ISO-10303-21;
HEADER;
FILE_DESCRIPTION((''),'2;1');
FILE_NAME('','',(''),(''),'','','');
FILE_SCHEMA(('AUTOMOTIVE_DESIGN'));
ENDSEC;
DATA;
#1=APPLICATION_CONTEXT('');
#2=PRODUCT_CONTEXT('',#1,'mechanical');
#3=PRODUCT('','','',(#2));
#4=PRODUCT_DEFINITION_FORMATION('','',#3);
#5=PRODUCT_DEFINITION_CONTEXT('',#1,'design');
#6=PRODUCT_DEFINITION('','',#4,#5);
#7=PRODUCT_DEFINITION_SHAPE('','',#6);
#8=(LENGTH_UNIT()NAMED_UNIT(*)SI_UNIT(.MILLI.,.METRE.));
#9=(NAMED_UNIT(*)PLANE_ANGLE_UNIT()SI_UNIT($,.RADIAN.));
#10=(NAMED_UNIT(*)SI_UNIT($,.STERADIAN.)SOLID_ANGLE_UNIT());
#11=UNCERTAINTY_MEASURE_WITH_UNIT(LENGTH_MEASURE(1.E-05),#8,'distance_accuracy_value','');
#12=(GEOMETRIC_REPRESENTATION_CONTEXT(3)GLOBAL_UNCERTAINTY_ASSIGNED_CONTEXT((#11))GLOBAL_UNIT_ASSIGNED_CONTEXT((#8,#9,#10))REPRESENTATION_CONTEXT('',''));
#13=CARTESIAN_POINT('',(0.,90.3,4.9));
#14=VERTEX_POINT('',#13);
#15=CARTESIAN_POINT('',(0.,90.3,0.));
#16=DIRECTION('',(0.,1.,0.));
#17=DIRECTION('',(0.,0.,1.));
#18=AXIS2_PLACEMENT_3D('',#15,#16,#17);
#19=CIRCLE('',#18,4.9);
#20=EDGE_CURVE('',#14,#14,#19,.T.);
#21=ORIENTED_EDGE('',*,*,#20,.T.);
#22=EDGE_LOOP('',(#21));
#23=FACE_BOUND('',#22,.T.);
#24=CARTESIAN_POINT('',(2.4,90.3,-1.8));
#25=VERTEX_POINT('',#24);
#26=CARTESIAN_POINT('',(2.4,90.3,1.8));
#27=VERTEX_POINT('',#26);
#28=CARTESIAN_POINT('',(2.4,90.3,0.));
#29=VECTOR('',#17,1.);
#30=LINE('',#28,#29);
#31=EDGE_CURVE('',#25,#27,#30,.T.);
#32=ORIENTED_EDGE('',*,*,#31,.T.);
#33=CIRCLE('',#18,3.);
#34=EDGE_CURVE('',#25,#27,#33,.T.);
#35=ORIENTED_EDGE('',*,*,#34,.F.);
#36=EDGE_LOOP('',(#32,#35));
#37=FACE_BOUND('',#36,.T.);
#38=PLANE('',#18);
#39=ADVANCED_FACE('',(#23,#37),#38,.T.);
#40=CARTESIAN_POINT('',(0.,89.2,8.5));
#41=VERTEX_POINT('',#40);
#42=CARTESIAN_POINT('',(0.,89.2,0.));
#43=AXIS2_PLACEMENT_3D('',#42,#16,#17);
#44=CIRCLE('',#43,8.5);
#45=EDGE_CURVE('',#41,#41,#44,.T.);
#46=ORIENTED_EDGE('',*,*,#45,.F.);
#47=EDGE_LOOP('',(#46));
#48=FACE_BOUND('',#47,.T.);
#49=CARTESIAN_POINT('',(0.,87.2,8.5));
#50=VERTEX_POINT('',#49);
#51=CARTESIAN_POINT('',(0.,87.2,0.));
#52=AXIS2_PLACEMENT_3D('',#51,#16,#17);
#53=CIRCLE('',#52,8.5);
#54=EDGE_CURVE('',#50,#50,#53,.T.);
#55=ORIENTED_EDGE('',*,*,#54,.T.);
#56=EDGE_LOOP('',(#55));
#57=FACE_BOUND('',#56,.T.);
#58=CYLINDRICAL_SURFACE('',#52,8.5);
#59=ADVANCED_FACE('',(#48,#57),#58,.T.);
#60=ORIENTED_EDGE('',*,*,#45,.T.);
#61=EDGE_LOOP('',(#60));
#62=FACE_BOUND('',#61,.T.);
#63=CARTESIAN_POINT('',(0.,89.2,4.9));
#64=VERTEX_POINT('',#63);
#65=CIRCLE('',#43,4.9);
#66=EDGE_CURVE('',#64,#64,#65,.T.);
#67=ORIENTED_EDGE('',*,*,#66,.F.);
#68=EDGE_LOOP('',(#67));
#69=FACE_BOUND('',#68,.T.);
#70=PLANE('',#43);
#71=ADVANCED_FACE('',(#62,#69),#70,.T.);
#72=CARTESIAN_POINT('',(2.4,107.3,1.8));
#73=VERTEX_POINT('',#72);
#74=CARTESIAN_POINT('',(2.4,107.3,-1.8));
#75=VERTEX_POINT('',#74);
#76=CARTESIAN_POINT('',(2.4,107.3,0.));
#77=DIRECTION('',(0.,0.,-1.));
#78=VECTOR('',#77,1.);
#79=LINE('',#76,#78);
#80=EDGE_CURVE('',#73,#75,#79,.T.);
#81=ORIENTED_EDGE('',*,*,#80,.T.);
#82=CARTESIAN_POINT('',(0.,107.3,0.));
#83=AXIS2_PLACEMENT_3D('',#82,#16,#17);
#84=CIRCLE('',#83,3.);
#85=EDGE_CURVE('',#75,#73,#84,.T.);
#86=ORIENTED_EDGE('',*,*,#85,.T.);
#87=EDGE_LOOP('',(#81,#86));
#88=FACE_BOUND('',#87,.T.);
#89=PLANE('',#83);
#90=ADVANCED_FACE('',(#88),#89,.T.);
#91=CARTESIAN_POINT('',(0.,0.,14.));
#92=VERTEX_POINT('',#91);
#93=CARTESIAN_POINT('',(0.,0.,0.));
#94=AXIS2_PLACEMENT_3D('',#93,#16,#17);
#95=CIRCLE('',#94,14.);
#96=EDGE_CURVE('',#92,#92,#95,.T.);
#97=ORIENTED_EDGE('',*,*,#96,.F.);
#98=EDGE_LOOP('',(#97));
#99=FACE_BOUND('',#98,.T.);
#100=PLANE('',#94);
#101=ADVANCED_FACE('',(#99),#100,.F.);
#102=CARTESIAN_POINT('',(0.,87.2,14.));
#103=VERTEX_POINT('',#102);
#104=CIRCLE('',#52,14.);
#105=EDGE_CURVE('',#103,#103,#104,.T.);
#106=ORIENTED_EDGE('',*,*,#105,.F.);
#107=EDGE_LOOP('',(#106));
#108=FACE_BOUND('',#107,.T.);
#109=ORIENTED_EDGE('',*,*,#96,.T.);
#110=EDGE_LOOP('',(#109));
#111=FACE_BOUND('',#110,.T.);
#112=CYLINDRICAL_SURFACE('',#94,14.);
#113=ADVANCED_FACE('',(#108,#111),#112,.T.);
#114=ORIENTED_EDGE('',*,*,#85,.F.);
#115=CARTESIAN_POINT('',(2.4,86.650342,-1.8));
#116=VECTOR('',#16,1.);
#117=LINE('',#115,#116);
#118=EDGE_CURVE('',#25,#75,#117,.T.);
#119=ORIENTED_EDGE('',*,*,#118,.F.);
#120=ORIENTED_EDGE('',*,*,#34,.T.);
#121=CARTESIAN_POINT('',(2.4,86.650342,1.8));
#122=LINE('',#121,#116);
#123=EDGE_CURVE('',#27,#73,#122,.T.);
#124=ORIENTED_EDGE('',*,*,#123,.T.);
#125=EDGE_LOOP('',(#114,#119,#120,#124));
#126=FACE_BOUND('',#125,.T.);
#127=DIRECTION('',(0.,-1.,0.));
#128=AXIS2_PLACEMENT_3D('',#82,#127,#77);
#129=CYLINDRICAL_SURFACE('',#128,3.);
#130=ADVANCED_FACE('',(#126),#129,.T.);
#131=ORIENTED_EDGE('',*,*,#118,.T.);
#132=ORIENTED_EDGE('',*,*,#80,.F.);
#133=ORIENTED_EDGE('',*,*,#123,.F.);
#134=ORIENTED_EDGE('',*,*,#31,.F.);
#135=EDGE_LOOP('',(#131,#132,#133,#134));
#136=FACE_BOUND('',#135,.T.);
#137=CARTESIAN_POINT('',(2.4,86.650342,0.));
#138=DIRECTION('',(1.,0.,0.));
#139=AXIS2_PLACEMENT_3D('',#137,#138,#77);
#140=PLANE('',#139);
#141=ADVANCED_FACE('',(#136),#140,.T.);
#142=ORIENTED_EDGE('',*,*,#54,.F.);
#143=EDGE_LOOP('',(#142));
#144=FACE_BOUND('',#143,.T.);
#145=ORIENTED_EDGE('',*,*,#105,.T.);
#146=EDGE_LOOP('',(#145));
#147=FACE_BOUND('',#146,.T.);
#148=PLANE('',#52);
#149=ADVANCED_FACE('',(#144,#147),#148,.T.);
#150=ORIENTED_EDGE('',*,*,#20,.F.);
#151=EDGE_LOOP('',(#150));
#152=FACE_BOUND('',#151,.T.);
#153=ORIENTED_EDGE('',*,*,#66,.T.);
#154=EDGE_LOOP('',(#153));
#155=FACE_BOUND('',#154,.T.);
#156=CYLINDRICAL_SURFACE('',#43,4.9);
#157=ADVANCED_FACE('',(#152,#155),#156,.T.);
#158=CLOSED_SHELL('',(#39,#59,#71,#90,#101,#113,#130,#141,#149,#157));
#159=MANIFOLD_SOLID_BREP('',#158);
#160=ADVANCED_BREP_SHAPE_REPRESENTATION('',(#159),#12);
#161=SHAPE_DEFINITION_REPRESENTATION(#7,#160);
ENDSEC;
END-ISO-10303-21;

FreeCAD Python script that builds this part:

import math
import FreeCAD as App
import Part
import Sketcher

V = App.Vector

doc = App.newDocument("Part")
body = doc.addObject("PartDesign::Body", "Body")

sketch1 = doc.addObject("Sketcher::SketchObject", "Sketch")
body.addObject(sketch1)
sketch1.AttachmentSupport = (doc.XZ_Plane, [""])
sketch1.MapMode = "FlatFace"
sketch1.addGeometry(Part.Circle(V(0, 0, 0), V(0, 0, 1), 14), False)
sketch1.addConstraint(Sketcher.Constraint("Coincident", 0, 3, -1, 1))
sketch1.addConstraint(Sketcher.Constraint("Diameter", 0, 28.0))

sketch2 = doc.addObject("Sketcher::SketchObject", "Sketch001")
body.addObject(sketch2)
sketch2.AttachmentSupport = (doc.XZ_Plane, [""])
sketch2.MapMode = "FlatFace"
sketch2.AttachmentOffset = App.Placement(V(0, 0, -87.2), App.Rotation())
sketch2.addGeometry(Part.Circle(V(0, 0, 0), V(0, 0, 1), 14), False)
sketch2.addConstraint(Sketcher.Constraint("Coincident", 0, 3, -1, 1))
sketch2.addConstraint(Sketcher.Constraint("Diameter", 0, 28.0))

additiveloft = doc.addObject("PartDesign::AdditiveLoft", "AdditiveLoft")
body.addObject(additiveloft)
additiveloft.Profile = sketch1
additiveloft.Sections = [sketch2]

sketch3 = doc.addObject("Sketcher::SketchObject", "Sketch002")
body.addObject(sketch3)
sketch3.AttachmentSupport = (doc.XZ_Plane, [""])
sketch3.MapMode = "FlatFace"
sketch3.AttachmentOffset = App.Placement(V(0, 0, -87.2), App.Rotation())
sketch3.addGeometry(Part.Circle(V(0, 0, 0), V(0, 0, 1), 8), False)
sketch3.addConstraint(Sketcher.Constraint("Coincident", 0, 3, -1, 1))
sketch3.addConstraint(Sketcher.Constraint("Diameter", 0, 17.0))

sketch4 = doc.addObject("Sketcher::SketchObject", "Sketch003")
body.addObject(sketch4)
sketch4.AttachmentSupport = (doc.XZ_Plane, [""])
sketch4.MapMode = "FlatFace"
sketch4.AttachmentOffset = App.Placement(V(0, 0, -89.2), App.Rotation())
sketch4.addGeometry(Part.Circle(V(0, 0, 0), V(0, 0, 1), 8), False)
sketch4.addConstraint(Sketcher.Constraint("Coincident", 0, 3, -1, 1))
sketch4.addConstraint(Sketcher.Constraint("Diameter", 0, 17.0))

additiveloft2 = doc.addObject("PartDesign::AdditiveLoft", "AdditiveLoft001")
body.addObject(additiveloft2)
additiveloft2.Profile = sketch3
additiveloft2.Sections = [sketch4]

sketch5 = doc.addObject("Sketcher::SketchObject", "Sketch004")
body.addObject(sketch5)
sketch5.AttachmentSupport = (doc.XZ_Plane, [""])
sketch5.MapMode = "FlatFace"
sketch5.AttachmentOffset = App.Placement(V(0, 0, -89.2), App.Rotation())
sketch5.addGeometry(Part.Circle(V(0, 0, 0), V(0, 0, 1), 4.9), False)
sketch5.addConstraint(Sketcher.Constraint("Coincident", 0, 3, -1, 1))
sketch5.addConstraint(Sketcher.Constraint("Diameter", 0, 9.8))

sketch6 = doc.addObject("Sketcher::SketchObject", "Sketch005")
body.addObject(sketch6)
sketch6.AttachmentSupport = (doc.XZ_Plane, [""])
sketch6.MapMode = "FlatFace"
sketch6.AttachmentOffset = App.Placement(V(0, 0, -90.3), App.Rotation())
sketch6.addGeometry(Part.Circle(V(0, 0, 0), V(0, 0, 1), 4.9), False)
sketch6.addConstraint(Sketcher.Constraint("Coincident", 0, 3, -1, 1))
sketch6.addConstraint(Sketcher.Constraint("Diameter", 0, 9.8))

additiveloft3 = doc.addObject("PartDesign::AdditiveLoft", "AdditiveLoft002")
body.addObject(additiveloft3)
additiveloft3.Profile = sketch5
additiveloft3.Sections = [sketch6]

sketch7 = doc.addObject("Sketcher::SketchObject", "Sketch006")
body.addObject(sketch7)
sketch7.AttachmentSupport = (doc.XZ_Plane, [""])
sketch7.MapMode = "FlatFace"
sketch7.AttachmentOffset = App.Placement(V(0, 0, -107.3), App.Rotation())
sketch7.addGeometry(Part.Circle(V(0, 0, 0), V(0, 0, 1), 3), False)
sketch7.addConstraint(Sketcher.Constraint("Coincident", 0, 3, -1, 1))
sketch7.addConstraint(Sketcher.Constraint("Diameter", 0, 6.0))

sketch8 = doc.addObject("Sketcher::SketchObject", "Sketch007")
body.addObject(sketch8)
sketch8.AttachmentSupport = (doc.XZ_Plane, [""])
sketch8.MapMode = "FlatFace"
sketch8.AttachmentOffset = App.Placement(V(0, 0, -90.3), App.Rotation())
sketch8.addGeometry(Part.Circle(V(0, 0, 0), V(0, 0, 1), 3), False)
sketch8.addConstraint(Sketcher.Constraint("Coincident", 0, 3, -1, 1))
sketch8.addConstraint(Sketcher.Constraint("Diameter", 0, 6.0))

additiveloft4 = doc.addObject("PartDesign::AdditiveLoft", "AdditiveLoft003")
body.addObject(additiveloft4)
additiveloft4.Profile = sketch7
additiveloft4.Sections = [sketch8]

sketch9 = doc.addObject("Sketcher::SketchObject", "Sketch008")
body.addObject(sketch9)
sketch9.AttachmentSupport = (doc.XZ_Plane, [""])
sketch9.MapMode = "FlatFace"
sketch9.AttachmentOffset = App.Placement(V(0, 0, -90.3), App.Rotation())
sketch9.addGeometry(Part.LineSegment(V(2.4, -1.8, 0), V(2.4, 1.8, 0)), False)
sketch9.addGeometry(Part.ArcOfCircle(Part.Circle(V(0, 0, 0), V(0, 0, 1), 3), math.radians(0), math.radians(37)), False)
sketch9.addGeometry(Part.ArcOfCircle(Part.Circle(V(0, 0, 0), V(0, 0, 1), 3), math.radians(-37), math.radians(0)), False)
sketch9.addConstraint(Sketcher.Constraint("Coincident", 0, 2, 1, 2))
sketch9.addConstraint(Sketcher.Constraint("Tangent", 1, 1, 2, 2))
sketch9.addConstraint(Sketcher.Constraint("Coincident", 2, 1, 0, 1))
sketch9.addConstraint(Sketcher.Constraint("Vertical", 0))
sketch9.addConstraint(Sketcher.Constraint("Coincident", 1, 3, -1, 1))
sketch9.addConstraint(Sketcher.Constraint("Equal", 1, 2))
sketch9.addConstraint(Sketcher.Constraint("PointOnObject", 1, 1, -1))
sketch9.addConstraint(Sketcher.Constraint("Radius", 1, 3.0))
sketch9.addConstraint(Sketcher.Constraint("DistanceY", 0, 1, 0, 2, 3.6))
pocket1 = doc.addObject("PartDesign::Pocket", "Pocket")
body.addObject(pocket1)
pocket1.Profile = sketch9
pocket1.Length = 17

doc.recompute()
